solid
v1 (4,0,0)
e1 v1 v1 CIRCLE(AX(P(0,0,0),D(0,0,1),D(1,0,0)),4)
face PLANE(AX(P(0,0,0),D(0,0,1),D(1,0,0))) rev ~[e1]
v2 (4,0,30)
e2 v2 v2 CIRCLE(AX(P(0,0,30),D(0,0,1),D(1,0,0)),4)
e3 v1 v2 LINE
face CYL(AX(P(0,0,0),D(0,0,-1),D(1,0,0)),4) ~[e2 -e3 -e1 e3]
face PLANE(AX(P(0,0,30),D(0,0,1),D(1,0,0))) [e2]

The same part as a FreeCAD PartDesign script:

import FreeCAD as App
import Part
import Sketcher
Q = App.Units.Quantity

doc = App.newDocument("Part")
body = doc.addObject("PartDesign::Body", "Body")

sketch1 = body.newObject("Sketcher::SketchObject", "Sketch")
sketch1.AttachmentSupport = (doc.getObject("XY_Plane"), [""])
sketch1.MapMode = "FlatFace"
sketch1.addGeometry(Part.Circle(App.Vector(0, 0, 0), App.Vector(0, 0, 1), 4), False)
sketch1.addConstraint([
    Sketcher.Constraint("Coincident", 0, 3, -1, 1),
    Sketcher.Constraint("Diameter", 0, Q("8 mm")),
])
pad1 = body.newObject("PartDesign::Pad", "Pad")
pad1.Profile = sketch1
pad1.Length = 60

sketch2 = body.newObject("Sketcher::SketchObject", "Sketch001")
sketch2.AttachmentSupport = (doc.getObject("XY_Plane"), [""])
sketch2.MapMode = "FlatFace"
sketch2.AttachmentOffset = App.Placement(App.Vector(0, 0, 60), App.Rotation())
sketch2.addGeometry(Part.Circle(App.Vector(0, 0, 0), App.Vector(0, 0, 1), 4), False)
sketch2.addConstraint([
    Sketcher.Constraint("Coincident", 0, 3, -1, 1),
    Sketcher.Constraint("Diameter", 0, Q("8 mm")),
])
pocket1 = body.newObject("PartDesign::Pocket", "Pocket")
pocket1.Profile = sketch2
pocket1.Length = 30

doc.recompute()
